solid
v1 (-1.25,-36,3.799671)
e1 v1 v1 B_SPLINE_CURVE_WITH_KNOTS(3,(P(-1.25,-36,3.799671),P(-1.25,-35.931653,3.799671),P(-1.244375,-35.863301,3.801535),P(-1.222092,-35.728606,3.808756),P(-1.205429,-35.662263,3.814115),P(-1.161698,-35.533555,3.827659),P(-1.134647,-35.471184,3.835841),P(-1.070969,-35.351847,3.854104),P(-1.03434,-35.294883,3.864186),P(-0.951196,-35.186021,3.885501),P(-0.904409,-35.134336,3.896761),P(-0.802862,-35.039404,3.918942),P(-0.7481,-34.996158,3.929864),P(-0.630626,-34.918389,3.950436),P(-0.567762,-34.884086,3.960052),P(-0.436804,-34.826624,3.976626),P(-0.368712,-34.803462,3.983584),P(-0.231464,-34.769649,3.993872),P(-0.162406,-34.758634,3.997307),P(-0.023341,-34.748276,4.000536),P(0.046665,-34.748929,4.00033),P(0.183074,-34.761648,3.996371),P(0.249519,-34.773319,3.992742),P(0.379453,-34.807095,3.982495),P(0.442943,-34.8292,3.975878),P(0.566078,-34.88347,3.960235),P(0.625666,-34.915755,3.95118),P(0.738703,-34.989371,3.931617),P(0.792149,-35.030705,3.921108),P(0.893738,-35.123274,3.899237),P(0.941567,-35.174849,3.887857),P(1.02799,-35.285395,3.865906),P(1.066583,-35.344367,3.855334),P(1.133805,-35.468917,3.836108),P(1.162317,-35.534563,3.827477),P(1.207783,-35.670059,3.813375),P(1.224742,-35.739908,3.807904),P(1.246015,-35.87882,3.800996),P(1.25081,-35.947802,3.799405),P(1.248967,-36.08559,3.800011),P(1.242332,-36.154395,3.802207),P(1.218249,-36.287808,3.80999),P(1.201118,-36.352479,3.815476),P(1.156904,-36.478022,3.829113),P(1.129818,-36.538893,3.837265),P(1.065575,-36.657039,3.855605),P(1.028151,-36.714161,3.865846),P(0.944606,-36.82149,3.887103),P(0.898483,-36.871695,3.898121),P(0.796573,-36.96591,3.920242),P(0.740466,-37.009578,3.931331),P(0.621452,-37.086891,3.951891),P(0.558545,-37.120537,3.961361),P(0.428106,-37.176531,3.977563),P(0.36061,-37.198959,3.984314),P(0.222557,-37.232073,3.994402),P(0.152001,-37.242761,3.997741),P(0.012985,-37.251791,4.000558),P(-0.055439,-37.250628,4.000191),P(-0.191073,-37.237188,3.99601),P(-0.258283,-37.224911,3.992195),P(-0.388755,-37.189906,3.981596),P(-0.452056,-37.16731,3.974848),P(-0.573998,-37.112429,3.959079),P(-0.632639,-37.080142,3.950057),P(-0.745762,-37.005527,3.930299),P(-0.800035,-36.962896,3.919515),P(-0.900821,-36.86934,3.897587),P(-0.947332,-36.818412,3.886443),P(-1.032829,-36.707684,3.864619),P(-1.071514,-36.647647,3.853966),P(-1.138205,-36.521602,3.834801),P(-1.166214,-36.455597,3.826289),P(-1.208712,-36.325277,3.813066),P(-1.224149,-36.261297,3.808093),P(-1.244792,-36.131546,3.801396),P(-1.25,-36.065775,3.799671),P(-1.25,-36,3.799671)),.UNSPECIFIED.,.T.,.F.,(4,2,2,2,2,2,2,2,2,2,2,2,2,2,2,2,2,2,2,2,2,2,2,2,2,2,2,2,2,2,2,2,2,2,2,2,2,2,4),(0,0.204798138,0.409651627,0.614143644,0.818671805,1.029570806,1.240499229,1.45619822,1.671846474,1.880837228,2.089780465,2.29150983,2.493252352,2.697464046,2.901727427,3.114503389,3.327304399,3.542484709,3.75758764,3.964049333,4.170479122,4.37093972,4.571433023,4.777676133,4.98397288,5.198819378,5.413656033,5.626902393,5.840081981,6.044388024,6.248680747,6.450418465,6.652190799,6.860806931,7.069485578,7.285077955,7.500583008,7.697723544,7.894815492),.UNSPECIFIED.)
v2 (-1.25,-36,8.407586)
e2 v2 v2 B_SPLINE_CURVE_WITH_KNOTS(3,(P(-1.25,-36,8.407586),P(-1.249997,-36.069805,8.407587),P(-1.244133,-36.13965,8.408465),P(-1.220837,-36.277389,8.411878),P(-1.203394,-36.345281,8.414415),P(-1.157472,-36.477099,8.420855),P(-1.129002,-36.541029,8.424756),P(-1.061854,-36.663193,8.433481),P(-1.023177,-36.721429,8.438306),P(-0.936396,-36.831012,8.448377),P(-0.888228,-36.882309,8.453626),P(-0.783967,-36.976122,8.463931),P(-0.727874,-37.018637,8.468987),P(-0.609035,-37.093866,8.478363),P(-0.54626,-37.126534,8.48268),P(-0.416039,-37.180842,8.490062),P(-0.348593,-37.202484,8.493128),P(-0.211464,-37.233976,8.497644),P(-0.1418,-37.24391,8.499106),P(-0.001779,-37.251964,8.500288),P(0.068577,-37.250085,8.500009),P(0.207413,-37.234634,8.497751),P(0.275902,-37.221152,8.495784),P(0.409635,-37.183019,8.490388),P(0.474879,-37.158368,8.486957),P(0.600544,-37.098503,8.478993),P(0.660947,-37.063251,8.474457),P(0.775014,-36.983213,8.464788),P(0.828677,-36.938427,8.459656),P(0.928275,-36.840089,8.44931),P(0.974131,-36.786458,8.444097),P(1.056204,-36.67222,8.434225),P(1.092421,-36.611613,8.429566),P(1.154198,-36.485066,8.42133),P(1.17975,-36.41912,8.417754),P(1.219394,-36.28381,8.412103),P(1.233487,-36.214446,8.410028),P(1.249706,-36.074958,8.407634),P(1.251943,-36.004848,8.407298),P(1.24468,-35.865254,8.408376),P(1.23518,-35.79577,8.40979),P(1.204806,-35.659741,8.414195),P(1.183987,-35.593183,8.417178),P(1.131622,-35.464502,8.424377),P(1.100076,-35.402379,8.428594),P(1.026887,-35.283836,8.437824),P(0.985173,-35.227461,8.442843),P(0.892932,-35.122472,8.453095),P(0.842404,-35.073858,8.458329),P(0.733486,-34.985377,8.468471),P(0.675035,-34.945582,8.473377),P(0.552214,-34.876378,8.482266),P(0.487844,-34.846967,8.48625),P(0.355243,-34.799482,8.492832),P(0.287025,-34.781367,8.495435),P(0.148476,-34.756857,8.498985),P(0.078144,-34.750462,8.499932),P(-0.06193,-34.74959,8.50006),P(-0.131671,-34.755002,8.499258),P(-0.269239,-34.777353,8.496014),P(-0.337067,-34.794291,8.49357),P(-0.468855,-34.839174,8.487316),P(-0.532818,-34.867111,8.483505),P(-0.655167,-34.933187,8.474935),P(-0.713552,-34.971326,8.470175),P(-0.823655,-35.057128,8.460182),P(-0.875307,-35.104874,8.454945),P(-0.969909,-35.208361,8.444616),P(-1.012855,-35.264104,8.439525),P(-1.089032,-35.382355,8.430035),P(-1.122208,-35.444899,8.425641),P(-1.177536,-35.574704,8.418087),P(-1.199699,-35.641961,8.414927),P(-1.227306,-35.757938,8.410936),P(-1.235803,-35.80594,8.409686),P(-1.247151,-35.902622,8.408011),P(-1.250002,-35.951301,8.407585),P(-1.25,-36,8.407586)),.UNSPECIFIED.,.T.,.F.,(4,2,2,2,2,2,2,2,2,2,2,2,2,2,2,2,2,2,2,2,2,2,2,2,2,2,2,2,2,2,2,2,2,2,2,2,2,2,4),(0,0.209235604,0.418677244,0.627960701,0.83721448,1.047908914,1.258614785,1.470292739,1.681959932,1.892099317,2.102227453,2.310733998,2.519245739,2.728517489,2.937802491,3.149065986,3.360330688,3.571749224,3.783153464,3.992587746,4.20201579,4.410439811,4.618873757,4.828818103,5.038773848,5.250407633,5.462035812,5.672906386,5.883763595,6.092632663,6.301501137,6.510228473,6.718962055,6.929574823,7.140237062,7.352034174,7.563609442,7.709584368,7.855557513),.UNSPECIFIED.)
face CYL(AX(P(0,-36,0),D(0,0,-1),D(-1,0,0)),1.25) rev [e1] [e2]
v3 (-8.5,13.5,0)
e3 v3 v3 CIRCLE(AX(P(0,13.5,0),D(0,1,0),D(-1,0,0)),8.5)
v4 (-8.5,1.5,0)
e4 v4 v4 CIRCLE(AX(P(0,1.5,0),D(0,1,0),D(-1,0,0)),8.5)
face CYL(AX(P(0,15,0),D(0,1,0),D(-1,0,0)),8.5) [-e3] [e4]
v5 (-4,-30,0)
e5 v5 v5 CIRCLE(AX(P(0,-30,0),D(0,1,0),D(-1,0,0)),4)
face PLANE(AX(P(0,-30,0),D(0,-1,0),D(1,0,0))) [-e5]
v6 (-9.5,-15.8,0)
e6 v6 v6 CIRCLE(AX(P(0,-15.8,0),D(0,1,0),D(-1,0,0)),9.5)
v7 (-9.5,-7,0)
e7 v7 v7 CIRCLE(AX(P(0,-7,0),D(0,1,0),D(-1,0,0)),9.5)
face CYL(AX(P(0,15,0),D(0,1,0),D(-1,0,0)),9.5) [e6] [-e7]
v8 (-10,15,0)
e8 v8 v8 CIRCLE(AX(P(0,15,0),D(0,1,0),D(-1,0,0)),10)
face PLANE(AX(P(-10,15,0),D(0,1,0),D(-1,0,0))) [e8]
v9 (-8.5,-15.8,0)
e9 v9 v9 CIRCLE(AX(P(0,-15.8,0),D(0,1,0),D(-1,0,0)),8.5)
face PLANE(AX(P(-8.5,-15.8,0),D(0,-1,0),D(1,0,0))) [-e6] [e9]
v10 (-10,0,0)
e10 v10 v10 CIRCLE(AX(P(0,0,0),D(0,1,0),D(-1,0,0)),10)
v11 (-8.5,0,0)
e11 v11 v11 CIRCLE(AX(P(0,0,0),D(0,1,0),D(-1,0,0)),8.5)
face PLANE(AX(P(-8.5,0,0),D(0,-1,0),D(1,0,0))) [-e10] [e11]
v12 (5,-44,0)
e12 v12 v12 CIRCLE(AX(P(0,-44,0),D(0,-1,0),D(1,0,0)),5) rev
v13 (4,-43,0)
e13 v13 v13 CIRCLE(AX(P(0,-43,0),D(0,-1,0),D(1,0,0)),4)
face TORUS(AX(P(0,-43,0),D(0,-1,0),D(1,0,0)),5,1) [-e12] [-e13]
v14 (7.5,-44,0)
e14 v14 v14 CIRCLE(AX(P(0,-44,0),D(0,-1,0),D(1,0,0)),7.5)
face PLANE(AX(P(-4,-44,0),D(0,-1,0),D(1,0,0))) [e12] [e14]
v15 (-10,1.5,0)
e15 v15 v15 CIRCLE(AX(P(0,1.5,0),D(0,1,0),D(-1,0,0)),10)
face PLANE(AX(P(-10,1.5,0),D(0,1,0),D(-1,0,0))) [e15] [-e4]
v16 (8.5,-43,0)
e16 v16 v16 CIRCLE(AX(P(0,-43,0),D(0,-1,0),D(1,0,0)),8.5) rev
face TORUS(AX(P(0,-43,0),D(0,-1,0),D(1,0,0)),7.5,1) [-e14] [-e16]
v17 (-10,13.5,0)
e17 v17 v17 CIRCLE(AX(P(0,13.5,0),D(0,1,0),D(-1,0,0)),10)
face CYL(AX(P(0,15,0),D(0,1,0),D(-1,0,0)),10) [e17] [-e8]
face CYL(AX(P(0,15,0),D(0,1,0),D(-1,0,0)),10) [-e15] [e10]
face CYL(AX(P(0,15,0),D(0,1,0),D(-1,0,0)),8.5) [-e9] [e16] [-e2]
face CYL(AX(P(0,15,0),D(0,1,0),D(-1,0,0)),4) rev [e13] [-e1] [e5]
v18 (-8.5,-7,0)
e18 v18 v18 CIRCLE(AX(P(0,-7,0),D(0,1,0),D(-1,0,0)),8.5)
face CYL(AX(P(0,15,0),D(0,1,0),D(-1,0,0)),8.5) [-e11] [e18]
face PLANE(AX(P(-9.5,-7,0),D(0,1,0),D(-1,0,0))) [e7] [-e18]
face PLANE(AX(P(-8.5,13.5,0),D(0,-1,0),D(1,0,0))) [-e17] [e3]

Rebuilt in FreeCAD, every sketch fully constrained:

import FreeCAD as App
import Part
import Sketcher
Q = App.Units.Quantity


def edges_at(feature, points):
    """Names of the edges that pass closest to the given points."""
    edges = feature.Shape.Edges
    near = lambda p: min(range(len(edges)), key=lambda i: edges[i].distToShape(Part.Vertex(*p))[0])
    return sorted({f"Edge{near(p) + 1}" for p in points})


def add_polygon(sketch, points):
    """Adds a closed chain of lines whose ends are joined by coincident constraints."""
    first, n = sketch.GeometryCount, len(points)
    for a, b in zip(points, points[1:] + points[:1]):
        sketch.addGeometry(Part.LineSegment(App.Vector(*a, 0), App.Vector(*b, 0)), False)
    for i in range(n):
        sketch.addConstraint(Sketcher.Constraint("Coincident", first + i, 2, first + (i + 1) % n, 1))

doc = App.newDocument("Part")
body = doc.addObject("PartDesign::Body", "Body")

sketch1 = body.newObject("Sketcher::SketchObject", "Sketch")
sketch1.AttachmentSupport = (doc.getObject("XY_Plane"), [""])
sketch1.MapMode = "FlatFace"
add_polygon(sketch1, [(-8.5, -15.8), (-8.5, -44), (-4, -44), (-4, -30), (0, -30), (0, 15), (-10, 15), (-10, 13.5), (-8.5, 13.5), (-8.5, 1.5), (-10, 1.5), (-10, 0), (-8.5, 0), (-8.5, -7), (-9.5, -7), (-9.5, -15.8)])
sketch1.addConstraint([
    Sketcher.Constraint("Vertical", 0),
    Sketcher.Constraint("Horizontal", 1),
    Sketcher.Constraint("Vertical", 2),
    Sketcher.Constraint("Horizontal", 3),
    Sketcher.Constraint("Vertical", 4),
    Sketcher.Constraint("Horizontal", 5),
    Sketcher.Constraint("Vertical", 6),
    Sketcher.Constraint("Horizontal", 7),
    Sketcher.Constraint("Vertical", 8),
    Sketcher.Constraint("Horizontal", 9),
    Sketcher.Constraint("Vertical", 10),
    Sketcher.Constraint("Horizontal", 11),
    Sketcher.Constraint("Vertical", 12),
    Sketcher.Constraint("Horizontal", 13),
    Sketcher.Constraint("Vertical", 14),
    Sketcher.Constraint("Horizontal", 15),
    Sketcher.Constraint("PointOnObject", 3, 2, -2),
    Sketcher.Constraint("PointOnObject", 10, 2, -1),
    Sketcher.Constraint("Vertical", 0, 2, 7, 2),
    Sketcher.Constraint("Vertical", 6, 2, 9, 2),
    Sketcher.Constraint("Vertical", 8, 2, 11, 2),
    Sketcher.Constraint("Equal", 11, 6),
    Sketcher.Constraint("Equal", 6, 10),
    Sketcher.Constraint("DistanceX", 3, 1, 3, 2, Q("4 mm")),
    Sketcher.Constraint("DistanceX", 5, 2, 5, 1, Q("10 mm")),
    Sketcher.Constraint("DistanceX", 13, 2, 13, 1, Q("1 mm")),
    Sketcher.Constraint("DistanceY", 2, 1, 2, 2, Q("14 mm")),
    Sketcher.Constraint("DistanceY", 4, 1, 4, 2, Q("45 mm")),
    Sketcher.Constraint("DistanceY", 8, 2, 8, 1, Q("12 mm")),
    Sketcher.Constraint("DistanceY", 12, 2, 12, 1, Q("7 mm")),
    Sketcher.Constraint("DistanceX", 1, 1, 1, 2, Q("4.5 mm")),
    Sketcher.Constraint("DistanceY", 0, 2, 0, 1, Q("28.2 mm")),
])
revolution = body.newObject("PartDesign::Revolution", "Revolution")
revolution.Profile = sketch1
revolution.ReferenceAxis = (sketch1, ["V_Axis"])
revolution.Angle = 360
doc.recompute()

fillet = body.newObject("PartDesign::Fillet", "Fillet")
fillet.Base = (revolution, edges_at(revolution, [(8.5, -44, 0), (4, -44, 0)]))
fillet.Radius = 1

sketch2 = body.newObject("Sketcher::SketchObject", "Sketch001")
sketch2.AttachmentSupport = (doc.getObject("YZ_Plane"), [""])
sketch2.MapMode = "FlatFace"
add_polygon(sketch2, [(-36, 8.5), (-36, 0), (-34.75, 0), (-34.75, 8.5)])
sketch2.addGeometry(Part.LineSegment(App.Vector(-36, 0, 0), App.Vector(-36, 8.5, 0)), True)
sketch2.addConstraint([
    Sketcher.Constraint("Vertical", 0),
    Sketcher.Constraint("Horizontal", 1),
    Sketcher.Constraint("Vertical", 2),
    Sketcher.Constraint("Horizontal", 3),
    Sketcher.Constraint("Vertical", 4),
    Sketcher.Constraint("Coincident", 4, 1, 0, 2),
    Sketcher.Constraint("PointOnObject", 0, 2, -1),
    Sketcher.Constraint("Horizontal", 2, 2, 4, 2),
    Sketcher.Constraint("DistanceY", 0, 2, 0, 1, Q("8.5 mm")),
    Sketcher.Constraint("DistanceX", 0, 2, -1, 1, Q("36 mm")),
    Sketcher.Constraint("DistanceX", 1, 1, 1, 2, Q("1.25 mm")),
])
groove = body.newObject("PartDesign::Groove", "Groove")
groove.Profile = sketch2
groove.ReferenceAxis = (sketch2, ["Axis0"])
groove.Angle = 360

doc.recompute()
